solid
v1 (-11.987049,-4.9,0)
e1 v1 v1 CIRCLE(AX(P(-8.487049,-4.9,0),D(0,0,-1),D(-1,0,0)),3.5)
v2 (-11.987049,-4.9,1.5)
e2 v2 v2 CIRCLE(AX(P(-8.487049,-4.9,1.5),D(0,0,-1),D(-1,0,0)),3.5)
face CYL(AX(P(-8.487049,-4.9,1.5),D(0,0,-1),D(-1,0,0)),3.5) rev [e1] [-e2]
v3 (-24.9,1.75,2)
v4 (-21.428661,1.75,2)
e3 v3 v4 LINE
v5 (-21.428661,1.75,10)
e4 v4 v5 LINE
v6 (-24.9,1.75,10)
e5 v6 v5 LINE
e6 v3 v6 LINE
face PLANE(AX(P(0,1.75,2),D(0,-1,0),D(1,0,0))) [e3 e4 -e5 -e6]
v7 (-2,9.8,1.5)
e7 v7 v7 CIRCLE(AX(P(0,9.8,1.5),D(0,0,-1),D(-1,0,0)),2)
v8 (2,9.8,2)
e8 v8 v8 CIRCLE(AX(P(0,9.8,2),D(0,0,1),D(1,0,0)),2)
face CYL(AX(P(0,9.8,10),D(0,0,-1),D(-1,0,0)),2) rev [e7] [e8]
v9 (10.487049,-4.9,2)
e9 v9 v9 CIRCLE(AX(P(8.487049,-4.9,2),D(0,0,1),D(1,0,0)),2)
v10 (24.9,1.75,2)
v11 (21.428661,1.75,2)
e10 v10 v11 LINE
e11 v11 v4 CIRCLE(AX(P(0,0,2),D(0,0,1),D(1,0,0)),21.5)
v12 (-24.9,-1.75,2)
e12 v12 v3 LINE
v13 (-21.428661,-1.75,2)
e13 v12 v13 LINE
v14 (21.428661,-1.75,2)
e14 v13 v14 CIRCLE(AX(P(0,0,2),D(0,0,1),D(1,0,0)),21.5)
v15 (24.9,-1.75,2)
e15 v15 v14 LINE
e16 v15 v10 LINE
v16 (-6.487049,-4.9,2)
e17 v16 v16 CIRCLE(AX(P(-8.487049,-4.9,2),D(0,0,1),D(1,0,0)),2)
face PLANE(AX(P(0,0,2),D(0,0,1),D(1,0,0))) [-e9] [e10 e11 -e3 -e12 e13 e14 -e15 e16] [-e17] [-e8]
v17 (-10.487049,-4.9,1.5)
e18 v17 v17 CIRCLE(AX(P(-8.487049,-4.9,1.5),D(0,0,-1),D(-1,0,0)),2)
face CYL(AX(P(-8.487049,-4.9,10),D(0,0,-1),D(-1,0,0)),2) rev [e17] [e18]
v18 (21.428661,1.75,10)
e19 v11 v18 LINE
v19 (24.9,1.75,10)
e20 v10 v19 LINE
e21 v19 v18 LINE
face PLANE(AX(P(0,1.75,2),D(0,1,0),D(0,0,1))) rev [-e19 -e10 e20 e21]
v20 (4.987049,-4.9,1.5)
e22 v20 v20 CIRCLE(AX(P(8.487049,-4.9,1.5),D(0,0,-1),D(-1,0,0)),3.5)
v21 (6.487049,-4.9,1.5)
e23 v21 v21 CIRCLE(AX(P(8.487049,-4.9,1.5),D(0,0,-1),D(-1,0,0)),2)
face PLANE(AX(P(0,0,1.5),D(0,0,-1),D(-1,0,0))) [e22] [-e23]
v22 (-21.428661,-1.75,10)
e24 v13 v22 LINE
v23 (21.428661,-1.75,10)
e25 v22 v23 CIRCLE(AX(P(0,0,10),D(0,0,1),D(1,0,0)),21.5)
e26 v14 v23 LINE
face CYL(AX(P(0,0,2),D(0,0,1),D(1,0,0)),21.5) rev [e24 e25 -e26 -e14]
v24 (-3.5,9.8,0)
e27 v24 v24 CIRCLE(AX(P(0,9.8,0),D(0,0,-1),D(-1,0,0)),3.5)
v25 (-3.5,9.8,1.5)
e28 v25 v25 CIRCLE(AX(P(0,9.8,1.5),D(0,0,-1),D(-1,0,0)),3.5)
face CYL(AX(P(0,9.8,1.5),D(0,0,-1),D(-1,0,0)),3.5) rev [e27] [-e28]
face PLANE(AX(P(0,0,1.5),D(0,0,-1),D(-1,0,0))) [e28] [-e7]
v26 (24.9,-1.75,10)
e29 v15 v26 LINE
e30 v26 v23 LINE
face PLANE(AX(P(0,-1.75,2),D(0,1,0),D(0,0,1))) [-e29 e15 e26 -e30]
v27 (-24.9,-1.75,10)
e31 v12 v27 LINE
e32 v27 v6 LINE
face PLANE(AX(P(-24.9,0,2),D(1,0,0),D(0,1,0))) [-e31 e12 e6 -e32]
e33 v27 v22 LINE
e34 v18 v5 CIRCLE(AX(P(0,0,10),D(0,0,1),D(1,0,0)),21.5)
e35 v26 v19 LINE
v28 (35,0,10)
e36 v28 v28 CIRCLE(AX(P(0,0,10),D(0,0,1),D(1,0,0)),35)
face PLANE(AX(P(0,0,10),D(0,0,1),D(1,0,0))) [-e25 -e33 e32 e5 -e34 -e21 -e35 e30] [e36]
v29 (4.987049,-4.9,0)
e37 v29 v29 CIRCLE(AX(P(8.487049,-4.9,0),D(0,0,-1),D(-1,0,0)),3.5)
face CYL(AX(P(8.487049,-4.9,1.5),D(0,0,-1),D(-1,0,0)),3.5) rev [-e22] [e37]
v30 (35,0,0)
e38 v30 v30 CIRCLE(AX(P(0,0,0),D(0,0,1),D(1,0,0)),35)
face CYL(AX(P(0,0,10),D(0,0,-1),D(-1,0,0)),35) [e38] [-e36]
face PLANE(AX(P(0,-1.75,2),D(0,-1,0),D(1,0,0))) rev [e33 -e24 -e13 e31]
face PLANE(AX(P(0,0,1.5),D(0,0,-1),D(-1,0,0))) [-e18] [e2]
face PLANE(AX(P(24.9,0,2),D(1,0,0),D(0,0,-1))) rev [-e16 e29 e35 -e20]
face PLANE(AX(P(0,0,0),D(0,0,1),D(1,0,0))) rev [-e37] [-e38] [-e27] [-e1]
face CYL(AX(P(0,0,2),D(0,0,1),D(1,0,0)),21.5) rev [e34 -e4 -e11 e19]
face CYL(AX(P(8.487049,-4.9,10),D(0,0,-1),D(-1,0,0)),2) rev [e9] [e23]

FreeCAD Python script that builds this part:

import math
import FreeCAD as App
import Part
import Sketcher

doc = App.newDocument("Part")
body = doc.addObject("PartDesign::Body", "Body")

# Sketch on XY plane
sketch1 = doc.addObject("Sketcher::SketchObject", "Sketch")
body.addObject(sketch1)
sketch1.AttachmentSupport = (doc.XY_Plane, [""])
sketch1.MapMode = "FlatFace"
sketch1.addGeometry(Part.Circle(App.Vector(0, 0, 0), App.Vector(0, 0, 1), 35), False)
sketch1.addConstraint([
    Sketcher.Constraint("Coincident", 0, 3, -1, 1),
    Sketcher.Constraint("Diameter", 0, 70.0),
])
pad1 = doc.addObject("PartDesign::Pad", "Pad")
body.addObject(pad1)
pad1.Profile = sketch1
pad1.Length = 10

# Sketch on XY plane
sketch2 = doc.addObject("Sketcher::SketchObject", "Sketch001")
body.addObject(sketch2)
sketch2.AttachmentSupport = (doc.XY_Plane, [""])
sketch2.MapMode = "FlatFace"
sketch2.AttachmentOffset = App.Placement(App.Vector(0, 0, 10), App.Rotation())
sketch2.addGeometry([
    Part.ArcOfCircle(Part.Circle(App.Vector(0, 0, 0), App.Vector(0, 0, 1), 21.5), math.radians(5), math.radians(175)),  # 0
    Part.LineSegment(App.Vector(-21.4, 1.8, 0), App.Vector(-24.9, 1.8, 0)),  # 1
    Part.LineSegment(App.Vector(-24.9, 1.8, 0), App.Vector(-24.9, -1.8, 0)),  # 2
    Part.LineSegment(App.Vector(-24.9, -1.8, 0), App.Vector(-21.4, -1.8, 0)),  # 3
    Part.ArcOfCircle(Part.Circle(App.Vector(0, 0, 0), App.Vector(0, 0, 1), 21.5), math.radians(-175), math.radians(-5)),  # 4
    Part.LineSegment(App.Vector(21.4, -1.8, 0), App.Vector(24.9, -1.8, 0)),  # 5
    Part.LineSegment(App.Vector(24.9, -1.8, 0), App.Vector(24.9, 1.8, 0)),  # 6
    Part.LineSegment(App.Vector(24.9, 1.8, 0), App.Vector(21.4, 1.8, 0)),  # 7
], False)
sketch2.addConstraint([
    Sketcher.Constraint("Coincident", 0, 2, 1, 1),
    Sketcher.Constraint("Coincident", 1, 2, 2, 1),
    Sketcher.Constraint("Coincident", 2, 2, 3, 1),
    Sketcher.Constraint("Coincident", 3, 2, 4, 1),
    Sketcher.Constraint("Coincident", 4, 2, 5, 1),
    Sketcher.Constraint("Coincident", 5, 2, 6, 1),
    Sketcher.Constraint("Coincident", 6, 2, 7, 1),
    Sketcher.Constraint("Coincident", 7, 2, 0, 1),
    Sketcher.Constraint("Horizontal", 1),
    Sketcher.Constraint("Vertical", 2),
    Sketcher.Constraint("Horizontal", 3),
    Sketcher.Constraint("Horizontal", 5),
    Sketcher.Constraint("Vertical", 6),
    Sketcher.Constraint("Horizontal", 7),
    Sketcher.Constraint("Coincident", 0, 3, -1, 1),
    Sketcher.Constraint("Coincident", 4, 3, -1, 1),
    Sketcher.Constraint("Equal", 0, 4),
    Sketcher.Constraint("Symmetric", 1, 2, 5, 2, -1, 1),
    Sketcher.Constraint("Horizontal", 3, 2, 4, 2),
    Sketcher.Constraint("Horizontal", 1, 2, 6, 2),
    Sketcher.Constraint("Radius", 0, 21.5),
    Sketcher.Constraint("DistanceY", 2, 2, 2, 1, 3.5),
    Sketcher.Constraint("DistanceX", 1, 2, -1, 1, 24.9),
])
pocket1 = doc.addObject("PartDesign::Pocket", "Pocket")
body.addObject(pocket1)
pocket1.Profile = sketch2
pocket1.Length = 8

# Sketch on XY plane
sketch3 = doc.addObject("Sketcher::SketchObject", "Sketch002")
body.addObject(sketch3)
sketch3.AttachmentSupport = (doc.XY_Plane, [""])
sketch3.MapMode = "FlatFace"
sketch3.addGeometry([
    Part.Circle(App.Vector(-8.5, -4.9, 0), App.Vector(0, 0, 1), 3.5),
    Part.Circle(App.Vector(8.5, -4.9, 0), App.Vector(0, 0, 1), 3.5),
    Part.Circle(App.Vector(0, 9.8, 0), App.Vector(0, 0, 1), 3.5),
], False)
sketch3.addConstraint([
    Sketcher.Constraint("Equal", 0, 1),
    Sketcher.Constraint("Equal", 1, 2),
    Sketcher.Constraint("Symmetric", 0, 3, 1, 3, -2),
    Sketcher.Constraint("PointOnObject", 2, 3, -2),
    Sketcher.Constraint("Diameter", 0, 7.0),
    Sketcher.Constraint("DistanceY", 0, 3, -1, 1, 4.9),
    Sketcher.Constraint("DistanceY", -1, 1, 2, 3, 9.8),
    Sketcher.Constraint("DistanceX", 0, 3, -1, 1, 8.487049),
])
pocket2 = doc.addObject("PartDesign::Pocket", "Pocket001")
body.addObject(pocket2)
pocket2.Profile = sketch3
pocket2.Length = 1.5
pocket2.Reversed = True

# Sketch on XY plane
sketch4 = doc.addObject("Sketcher::SketchObject", "Sketch003")
body.addObject(sketch4)
sketch4.AttachmentSupport = (doc.XY_Plane, [""])
sketch4.MapMode = "FlatFace"
sketch4.AttachmentOffset = App.Placement(App.Vector(0, 0, 1.5), App.Rotation())
sketch4.addGeometry([
    Part.Circle(App.Vector(0, 9.8, 0), App.Vector(0, 0, 1), 2),
    Part.Circle(App.Vector(-8.5, -4.9, 0), App.Vector(0, 0, 1), 2),
    Part.Circle(App.Vector(8.5, -4.9, 0), App.Vector(0, 0, 1), 2),
], False)
sketch4.addConstraint([
    Sketcher.Constraint("Equal", 0, 1),
    Sketcher.Constraint("Equal", 1, 2),
    Sketcher.Constraint("Symmetric", 1, 3, 2, 3, -2),
    Sketcher.Constraint("PointOnObject", 0, 3, -2),
    Sketcher.Constraint("Diameter", 0, 4.0),
    Sketcher.Constraint("DistanceY", -1, 1, 0, 3, 9.8),
    Sketcher.Constraint("DistanceY", 1, 3, -1, 1, 4.9),
    Sketcher.Constraint("DistanceX", 1, 3, -1, 1, 8.487049),
])
pocket3 = doc.addObject("PartDesign::Pocket", "Pocket002")
body.addObject(pocket3)
pocket3.Profile = sketch4
pocket3.Type = "ThroughAll"
pocket3.Reversed = True

doc.recompute()
